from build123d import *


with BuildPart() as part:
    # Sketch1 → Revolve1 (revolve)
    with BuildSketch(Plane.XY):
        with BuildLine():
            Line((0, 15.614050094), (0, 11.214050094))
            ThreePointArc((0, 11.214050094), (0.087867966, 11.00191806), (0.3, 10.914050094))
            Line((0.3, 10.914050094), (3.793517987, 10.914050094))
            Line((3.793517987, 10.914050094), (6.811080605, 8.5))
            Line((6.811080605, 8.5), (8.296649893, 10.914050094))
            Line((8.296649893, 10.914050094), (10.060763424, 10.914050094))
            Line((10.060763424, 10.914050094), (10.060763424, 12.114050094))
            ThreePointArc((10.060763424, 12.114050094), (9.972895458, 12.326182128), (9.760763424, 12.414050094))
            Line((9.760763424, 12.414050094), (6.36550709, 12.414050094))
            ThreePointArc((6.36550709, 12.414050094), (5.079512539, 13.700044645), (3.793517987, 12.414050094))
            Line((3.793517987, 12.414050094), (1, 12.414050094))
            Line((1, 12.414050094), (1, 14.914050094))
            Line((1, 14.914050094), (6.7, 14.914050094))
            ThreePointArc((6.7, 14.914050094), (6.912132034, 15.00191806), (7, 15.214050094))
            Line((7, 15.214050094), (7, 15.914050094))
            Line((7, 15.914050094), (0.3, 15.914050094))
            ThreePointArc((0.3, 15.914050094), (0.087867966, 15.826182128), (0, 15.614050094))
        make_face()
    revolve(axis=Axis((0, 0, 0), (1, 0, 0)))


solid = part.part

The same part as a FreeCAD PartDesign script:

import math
import FreeCAD as App
import Part
import Sketcher

V = App.Vector
Q = App.Units.Quantity

doc = App.newDocument("Part")
body = doc.addObject("PartDesign::Body", "Body")

sketch1 = body.newObject("Sketcher::SketchObject", "Sketch")
sketch1.AttachmentSupport = (doc.getObject("XY_Plane"), [""])
sketch1.MapMode = "FlatFace"
sketch1.addGeometry(Part.LineSegment(V(0, 15.61, 0), V(0, 11.21, 0)), False)
sketch1.addGeometry(Part.ArcOfCircle(Part.Circle(V(0.3, 11.21, 0), V(0, 0, 1), 0.3), math.radians(-180), math.radians(-90)), False)
sketch1.addGeometry(Part.LineSegment(V(0.3, 10.91, 0), V(3.79, 10.91, 0)), False)
sketch1.addGeometry(Part.LineSegment(V(3.79, 10.91, 0), V(6.81, 8.5, 0)), False)
sketch1.addGeometry(Part.LineSegment(V(6.81, 8.5, 0), V(8.3, 10.91, 0)), False)
sketch1.addGeometry(Part.LineSegment(V(8.3, 10.91, 0), V(10.06, 10.91, 0)), False)
sketch1.addGeometry(Part.LineSegment(V(10.06, 10.91, 0), V(10.06, 12.11, 0)), False)
sketch1.addGeometry(Part.ArcOfCircle(Part.Circle(V(9.76, 12.11, 0), V(0, 0, 1), 0.3), math.radians(0), math.radians(90)), False)
sketch1.addGeometry(Part.LineSegment(V(9.76, 12.41, 0), V(6.37, 12.41, 0)), False)
sketch1.addGeometry(Part.ArcOfCircle(Part.Circle(V(5.08, 12.41, 0), V(0, 0, 1), 1.29), math.radians(0), math.radians(180)), False)
sketch1.addGeometry(Part.LineSegment(V(3.79, 12.41, 0), V(1, 12.41, 0)), False)
sketch1.addGeometry(Part.LineSegment(V(1, 12.41, 0), V(1, 14.91, 0)), False)
sketch1.addGeometry(Part.LineSegment(V(1, 14.91, 0), V(6.7, 14.91, 0)), False)
sketch1.addGeometry(Part.ArcOfCircle(Part.Circle(V(6.7, 15.21, 0), V(0, 0, 1), 0.3), math.radians(-90), math.radians(0)), False)
sketch1.addGeometry(Part.LineSegment(V(7, 15.21, 0), V(7, 15.91, 0)), False)
sketch1.addGeometry(Part.LineSegment(V(7, 15.91, 0), V(0.3, 15.91, 0)), False)
sketch1.addGeometry(Part.ArcOfCircle(Part.Circle(V(0.3, 15.61, 0), V(0, 0, 1), 0.3), math.radians(90), math.radians(180)), False)
sketch1.addConstraint(Sketcher.Constraint("Tangent", 0, 2, 1, 1))
sketch1.addConstraint(Sketcher.Constraint("Tangent", 1, 2, 2, 1))
sketch1.addConstraint(Sketcher.Constraint("Coincident", 2, 2, 3, 1))
sketch1.addConstraint(Sketcher.Constraint("Coincident", 3, 2, 4, 1))
sketch1.addConstraint(Sketcher.Constraint("Coincident", 4, 2, 5, 1))
sketch1.addConstraint(Sketcher.Constraint("Coincident", 5, 2, 6, 1))
sketch1.addConstraint(Sketcher.Constraint("Tangent", 6, 2, 7, 1))
sketch1.addConstraint(Sketcher.Constraint("Tangent", 7, 2, 8, 1))
sketch1.addConstraint(Sketcher.Constraint("Coincident", 8, 2, 9, 1))
sketch1.addConstraint(Sketcher.Constraint("Coincident", 9, 2, 10, 1))
sketch1.addConstraint(Sketcher.Constraint("Coincident", 10, 2, 11, 1))
sketch1.addConstraint(Sketcher.Constraint("Coincident", 11, 2, 12, 1))
sketch1.addConstraint(Sketcher.Constraint("Tangent", 12, 2, 13, 1))
sketch1.addConstraint(Sketcher.Constraint("Tangent", 13, 2, 14, 1))
sketch1.addConstraint(Sketcher.Constraint("Coincident", 14, 2, 15, 1))
sketch1.addConstraint(Sketcher.Constraint("Tangent", 15, 2, 16, 1))
sketch1.addConstraint(Sketcher.Constraint("Tangent", 16, 2, 0, 1))
sketch1.addConstraint(Sketcher.Constraint("Vertical", 0))
sketch1.addConstraint(Sketcher.Constraint("Horizontal", 2))
sketch1.addConstraint(Sketcher.Constraint("Horizontal", 5))
sketch1.addConstraint(Sketcher.Constraint("Vertical", 6))
sketch1.addConstraint(Sketcher.Constraint("Horizontal", 8))
sketch1.addConstraint(Sketcher.Constraint("Horizontal", 10))
sketch1.addConstraint(Sketcher.Constraint("Vertical", 11))
sketch1.addConstraint(Sketcher.Constraint("Horizontal", 12))
sketch1.addConstraint(Sketcher.Constraint("Vertical", 14))
sketch1.addConstraint(Sketcher.Constraint("Horizontal", 15))
sketch1.addConstraint(Sketcher.Constraint("Equal", 1, 7))
sketch1.addConstraint(Sketcher.Constraint("Equal", 7, 13))
sketch1.addConstraint(Sketcher.Constraint("Equal", 13, 16))
sketch1.addConstraint(Sketcher.Constraint("PointOnObject", 0, 2, -2))
sketch1.addConstraint(Sketcher.Constraint("Horizontal", 2, 2, 4, 2))
sketch1.addConstraint(Sketcher.Constraint("Horizontal", 9, 3, 7, 2))
sketch1.addConstraint(Sketcher.Constraint("Horizontal", 8, 2, 9, 2))
sketch1.addConstraint(Sketcher.Constraint("Vertical", 2, 2, 9, 2))
sketch1.addConstraint(Sketcher.Constraint("Radius", 1, Q("0.3 mm")))
sketch1.addConstraint(Sketcher.Constraint("DistanceX", 12, 1, 12, 2, Q("5.7 mm")))
sketch1.addConstraint(Sketcher.Constraint("DistanceX", 15, 2, 15, 1, Q("6.7 mm")))
sketch1.addConstraint(Sketcher.Constraint("DistanceY", 0, 2, 0, 1, Q("4.4 mm")))
sketch1.addConstraint(Sketcher.Constraint("DistanceY", 6, 1, 6, 2, Q("1.2 mm")))
sketch1.addConstraint(Sketcher.Constraint("DistanceY", 11, 1, 11, 2, Q("2.5 mm")))
sketch1.addConstraint(Sketcher.Constraint("DistanceY", -1, 1, 3, 2, Q("8.5 mm")))
sketch1.addConstraint(Sketcher.Constraint("Radius", 9, Q("1.285995 mm")))
sketch1.addConstraint(Sketcher.Constraint("Distance", 4, Q("2.834529 mm")))
sketch1.addConstraint(Sketcher.Constraint("DistanceX", 2, 1, 2, 2, Q("3.493518 mm")))
sketch1.addConstraint(Sketcher.Constraint("DistanceX", 5, 1, 5, 2, Q("1.764114 mm")))
sketch1.addConstraint(Sketcher.Constraint("DistanceX", 8, 2, 8, 1, Q("3.395256 mm")))
sketch1.addConstraint(Sketcher.Constraint("DistanceY", -1, 1, 1, 3, Q("11.21405 mm")))
revolution = body.newObject("PartDesign::Revolution", "Revolution")
revolution.Profile = sketch1
revolution.ReferenceAxis = (sketch1, ["H_Axis"])
revolution.Angle = 360

doc.recompute()
